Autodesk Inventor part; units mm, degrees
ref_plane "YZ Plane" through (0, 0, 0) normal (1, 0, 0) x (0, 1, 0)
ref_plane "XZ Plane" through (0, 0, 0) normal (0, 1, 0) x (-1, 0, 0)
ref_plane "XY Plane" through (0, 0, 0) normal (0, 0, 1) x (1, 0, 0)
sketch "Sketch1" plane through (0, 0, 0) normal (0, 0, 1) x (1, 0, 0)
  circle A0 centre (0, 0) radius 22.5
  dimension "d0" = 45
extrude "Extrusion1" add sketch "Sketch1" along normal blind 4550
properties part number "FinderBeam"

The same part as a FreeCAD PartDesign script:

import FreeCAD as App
import Part
import Sketcher
from FreeCAD import Vector

doc = App.newDocument("Part")
params = doc.addObject("Spreadsheet::Sheet", "Params")
for row, (alias, value) in enumerate([
    ("sketch1_diameter", "45 mm"),
    ("pad1_length", "4550 mm"),
], start=1):
    params.set(f"A{row}", alias)
    params.set(f"B{row}", "=" + value)
    params.setAlias(f"B{row}", alias)

body = doc.addObject("PartDesign::Body", "Body")

sketch1 = doc.addObject("Sketcher::SketchObject", "Sketch")
body.addObject(sketch1)
sketch1.AttachmentSupport = (doc.XY_Plane, [""])
sketch1.MapMode = "FlatFace"
sketch1.addGeometry(Part.Circle(Vector(0, 0, 0), Vector(0, 0, 1), 22), False)
sketch1.addConstraint([
    Sketcher.Constraint("Coincident", 0, 3, -1, 1),
    Sketcher.Constraint("Diameter", 0, 45.0),
])
sketch1.setExpression("Constraints[1]", "Params.sketch1_diameter")
pad1 = doc.addObject("PartDesign::Pad", "Pad")
body.addObject(pad1)
pad1.Profile = sketch1
pad1.setExpression("Length", "Params.pad1_length")

doc.recompute()
